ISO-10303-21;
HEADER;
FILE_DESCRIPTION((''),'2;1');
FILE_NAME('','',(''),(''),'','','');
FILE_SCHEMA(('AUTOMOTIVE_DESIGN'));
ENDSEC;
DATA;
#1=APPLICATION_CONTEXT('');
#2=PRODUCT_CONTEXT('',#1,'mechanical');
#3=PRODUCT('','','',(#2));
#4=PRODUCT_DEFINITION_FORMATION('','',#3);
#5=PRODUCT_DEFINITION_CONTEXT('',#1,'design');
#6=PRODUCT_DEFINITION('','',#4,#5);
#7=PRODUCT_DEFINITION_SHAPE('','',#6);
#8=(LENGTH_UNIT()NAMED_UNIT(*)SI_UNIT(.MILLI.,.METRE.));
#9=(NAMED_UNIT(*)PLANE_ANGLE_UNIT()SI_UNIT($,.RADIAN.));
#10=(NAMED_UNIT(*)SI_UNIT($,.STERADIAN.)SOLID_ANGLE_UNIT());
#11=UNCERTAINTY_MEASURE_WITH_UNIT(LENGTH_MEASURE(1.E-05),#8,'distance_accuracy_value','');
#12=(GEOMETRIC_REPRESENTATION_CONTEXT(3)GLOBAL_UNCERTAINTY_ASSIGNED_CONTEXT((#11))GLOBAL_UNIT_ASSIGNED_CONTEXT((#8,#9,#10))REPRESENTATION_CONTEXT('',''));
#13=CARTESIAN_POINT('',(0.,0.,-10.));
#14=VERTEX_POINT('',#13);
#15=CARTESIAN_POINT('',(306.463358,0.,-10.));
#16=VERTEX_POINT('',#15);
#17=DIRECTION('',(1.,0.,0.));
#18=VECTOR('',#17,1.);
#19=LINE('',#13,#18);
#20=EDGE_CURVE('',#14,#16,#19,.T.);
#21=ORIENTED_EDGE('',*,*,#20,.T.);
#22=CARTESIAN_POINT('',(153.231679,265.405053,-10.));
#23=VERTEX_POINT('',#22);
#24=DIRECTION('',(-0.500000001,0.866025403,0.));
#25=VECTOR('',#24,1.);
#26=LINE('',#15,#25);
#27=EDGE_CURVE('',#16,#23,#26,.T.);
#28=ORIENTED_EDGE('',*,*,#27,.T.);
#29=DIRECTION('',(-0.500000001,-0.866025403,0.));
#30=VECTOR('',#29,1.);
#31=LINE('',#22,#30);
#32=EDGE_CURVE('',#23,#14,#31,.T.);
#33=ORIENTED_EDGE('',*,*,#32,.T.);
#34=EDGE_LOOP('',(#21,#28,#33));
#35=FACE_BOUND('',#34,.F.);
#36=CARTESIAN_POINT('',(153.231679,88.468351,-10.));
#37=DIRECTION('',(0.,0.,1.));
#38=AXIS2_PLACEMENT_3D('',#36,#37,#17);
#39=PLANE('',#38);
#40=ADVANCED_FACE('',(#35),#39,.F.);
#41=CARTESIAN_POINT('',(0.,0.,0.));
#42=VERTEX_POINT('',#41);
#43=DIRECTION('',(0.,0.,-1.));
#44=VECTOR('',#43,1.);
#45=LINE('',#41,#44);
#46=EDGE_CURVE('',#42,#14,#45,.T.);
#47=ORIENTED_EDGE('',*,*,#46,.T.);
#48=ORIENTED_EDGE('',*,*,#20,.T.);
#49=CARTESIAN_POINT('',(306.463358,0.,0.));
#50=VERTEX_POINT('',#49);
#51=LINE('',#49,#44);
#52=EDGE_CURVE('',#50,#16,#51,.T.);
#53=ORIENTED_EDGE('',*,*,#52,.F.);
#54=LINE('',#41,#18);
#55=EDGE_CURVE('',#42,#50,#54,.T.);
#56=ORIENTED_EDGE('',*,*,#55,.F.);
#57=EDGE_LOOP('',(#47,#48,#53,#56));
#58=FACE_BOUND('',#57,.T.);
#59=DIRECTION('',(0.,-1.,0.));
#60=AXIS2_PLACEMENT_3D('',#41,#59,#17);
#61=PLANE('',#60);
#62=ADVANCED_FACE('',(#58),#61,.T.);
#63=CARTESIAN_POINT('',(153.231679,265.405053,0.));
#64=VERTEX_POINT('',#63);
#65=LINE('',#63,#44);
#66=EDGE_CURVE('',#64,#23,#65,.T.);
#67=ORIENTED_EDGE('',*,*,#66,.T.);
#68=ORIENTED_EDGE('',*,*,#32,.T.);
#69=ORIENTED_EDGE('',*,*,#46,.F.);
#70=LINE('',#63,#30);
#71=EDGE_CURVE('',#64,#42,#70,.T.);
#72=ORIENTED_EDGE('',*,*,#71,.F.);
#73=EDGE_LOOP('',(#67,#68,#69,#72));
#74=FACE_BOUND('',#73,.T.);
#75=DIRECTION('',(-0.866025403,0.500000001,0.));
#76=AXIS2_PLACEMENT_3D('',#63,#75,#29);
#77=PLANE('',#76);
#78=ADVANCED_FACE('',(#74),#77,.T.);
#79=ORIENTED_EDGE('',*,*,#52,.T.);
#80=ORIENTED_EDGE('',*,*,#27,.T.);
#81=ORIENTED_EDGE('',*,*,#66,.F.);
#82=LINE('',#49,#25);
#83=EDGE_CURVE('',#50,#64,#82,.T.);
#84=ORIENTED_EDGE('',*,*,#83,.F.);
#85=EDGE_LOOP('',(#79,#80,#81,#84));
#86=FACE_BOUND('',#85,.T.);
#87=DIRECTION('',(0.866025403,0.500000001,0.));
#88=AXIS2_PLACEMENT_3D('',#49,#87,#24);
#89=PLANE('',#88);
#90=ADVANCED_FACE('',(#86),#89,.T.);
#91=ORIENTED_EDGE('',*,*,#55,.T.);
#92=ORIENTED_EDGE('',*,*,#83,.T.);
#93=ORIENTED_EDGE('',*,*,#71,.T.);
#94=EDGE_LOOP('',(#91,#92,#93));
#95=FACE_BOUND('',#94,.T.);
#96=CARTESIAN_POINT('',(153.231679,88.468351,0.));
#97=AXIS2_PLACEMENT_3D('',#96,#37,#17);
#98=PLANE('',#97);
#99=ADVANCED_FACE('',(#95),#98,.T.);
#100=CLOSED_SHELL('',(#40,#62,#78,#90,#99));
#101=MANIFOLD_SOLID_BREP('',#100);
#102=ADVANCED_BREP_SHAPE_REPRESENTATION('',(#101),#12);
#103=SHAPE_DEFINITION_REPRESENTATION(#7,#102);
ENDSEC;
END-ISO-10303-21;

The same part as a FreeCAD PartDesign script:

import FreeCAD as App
import Part
import Sketcher
Q = App.Units.Quantity


def add_polygon(sketch, points):
    """Adds a closed chain of lines whose ends are joined by coincident constraints."""
    first, n = sketch.GeometryCount, len(points)
    for a, b in zip(points, points[1:] + points[:1]):
        sketch.addGeometry(Part.LineSegment(App.Vector(*a, 0), App.Vector(*b, 0)), False)
    for i in range(n):
        sketch.addConstraint(Sketcher.Constraint("Coincident", first + i, 2, first + (i + 1) % n, 1))

doc = App.newDocument("Part")
body = doc.addObject("PartDesign::Body", "Body")

sketch1 = doc.addObject("Sketcher::SketchObject", "Sketch")
body.addObject(sketch1)
sketch1.AttachmentSupport = (doc.XY_Plane, [""])
sketch1.MapMode = "FlatFace"
add_polygon(sketch1, [(-47.205635, 137.739944), (-200.437314, -127.665109), (106.026044, -127.665109)])
sketch1.addConstraint([
    Sketcher.Constraint("Horizontal", 1),
    Sketcher.Constraint("Equal", 0, 2),
    Sketcher.Constraint("Angle", 0, Q("-120 deg")),
    Sketcher.Constraint("DistanceX", 1, 1, 1, 2, Q("306.463358 mm")),
    Sketcher.Constraint("DistanceY", 0, 2, -1, 1, Q("127.665109 mm")),
    Sketcher.Constraint("DistanceX", 0, 2, -1, 1, Q("200.437314 mm")),
])
pad1 = doc.addObject("PartDesign::Pad", "Pad")
body.addObject(pad1)
pad1.Profile = sketch1
pad1.Length = 10
pad1.Reversed = True
body2 = doc.addObject("PartDesign::Body", "Body001")
doc.recompute()

body.Placement = App.Placement(App.Vector(200.437314, 127.665109, 0), App.Rotation(App.Vector(0, 0, 1), 0))
boolean = doc.addObject("PartDesign::Boolean", "Boolean")
body2.addObject(boolean)
boolean.Type = "Fuse"
boolean.addObjects([body])

doc.recompute()
